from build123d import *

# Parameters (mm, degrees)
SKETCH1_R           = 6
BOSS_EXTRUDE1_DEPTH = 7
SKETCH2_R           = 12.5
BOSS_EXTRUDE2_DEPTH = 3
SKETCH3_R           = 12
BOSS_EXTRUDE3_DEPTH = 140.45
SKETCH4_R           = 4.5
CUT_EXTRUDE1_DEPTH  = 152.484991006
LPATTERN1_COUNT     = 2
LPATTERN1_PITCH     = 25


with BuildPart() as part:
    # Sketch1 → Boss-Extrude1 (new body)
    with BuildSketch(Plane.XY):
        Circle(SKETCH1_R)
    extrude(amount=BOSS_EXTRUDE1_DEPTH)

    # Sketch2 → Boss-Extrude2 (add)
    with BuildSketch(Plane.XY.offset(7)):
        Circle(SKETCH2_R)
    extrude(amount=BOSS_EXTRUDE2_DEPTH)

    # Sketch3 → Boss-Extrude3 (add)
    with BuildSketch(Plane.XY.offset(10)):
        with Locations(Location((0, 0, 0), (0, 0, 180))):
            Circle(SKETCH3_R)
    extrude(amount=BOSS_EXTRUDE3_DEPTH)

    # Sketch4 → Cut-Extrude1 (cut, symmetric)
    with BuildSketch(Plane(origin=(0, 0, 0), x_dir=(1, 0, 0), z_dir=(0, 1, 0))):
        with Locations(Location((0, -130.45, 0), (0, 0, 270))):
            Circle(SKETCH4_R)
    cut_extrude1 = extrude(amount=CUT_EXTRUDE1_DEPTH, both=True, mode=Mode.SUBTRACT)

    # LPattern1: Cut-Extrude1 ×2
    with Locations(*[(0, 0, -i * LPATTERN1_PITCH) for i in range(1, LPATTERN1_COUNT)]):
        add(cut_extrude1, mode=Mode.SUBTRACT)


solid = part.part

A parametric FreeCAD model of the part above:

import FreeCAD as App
import Part
import Sketcher

V = App.Vector

doc = App.newDocument("Part")
params = doc.addObject("Spreadsheet::Sheet", "Params")
for row, (alias, value) in enumerate([
    ("sketch1_diameter", "12 mm"),
    ("pad1_length", "7 mm"),
    ("sketch2_diameter", "25 mm"),
    ("pad2_length", "3 mm"),
    ("sketch3_diameter", "24 mm"),
    ("pad3_length", "140.45 mm"),
    ("sketch4_diameter", "9 mm"),
    ("pocket1_length", "304.969982 mm"),
    ("linearpattern_pitch", "25 mm"),
], start=1):
    params.set(f"A{row}", alias)
    params.set(f"B{row}", "=" + value)
    params.setAlias(f"B{row}", alias)

body = doc.addObject("PartDesign::Body", "Body")

# Sketch on XY plane
sketch1 = doc.addObject("Sketcher::SketchObject", "Sketch")
body.addObject(sketch1)
sketch1.AttachmentSupport = (doc.XY_Plane, [""])
sketch1.MapMode = "FlatFace"
sketch1.addGeometry(Part.Circle(V(0, 0, 0), V(0, 0, 1), 6), False)
sketch1.addConstraint(Sketcher.Constraint("Coincident", 0, 3, -1, 1))
sketch1.addConstraint(Sketcher.Constraint("Diameter", 0, 12.0))
sketch1.setExpression("Constraints[1]", "Params.sketch1_diameter")
pad1 = doc.addObject("PartDesign::Pad", "Pad")
body.addObject(pad1)
pad1.Profile = sketch1
pad1.setExpression("Length", "Params.pad1_length")

# Sketch on XY plane
sketch2 = doc.addObject("Sketcher::SketchObject", "Sketch001")
body.addObject(sketch2)
sketch2.AttachmentSupport = (doc.XY_Plane, [""])
sketch2.MapMode = "FlatFace"
sketch2.AttachmentOffset = App.Placement(V(0, 0, 7), App.Rotation())
sketch2.addGeometry(Part.Circle(V(0, 0, 0), V(0, 0, 1), 12), False)
sketch2.addConstraint(Sketcher.Constraint("Coincident", 0, 3, -1, 1))
sketch2.addConstraint(Sketcher.Constraint("Diameter", 0, 25.0))
sketch2.setExpression("Constraints[1]", "Params.sketch2_diameter")
pad2 = doc.addObject("PartDesign::Pad", "Pad001")
body.addObject(pad2)
pad2.Profile = sketch2
pad2.setExpression("Length", "Params.pad2_length")

# Sketch on XY plane
sketch3 = doc.addObject("Sketcher::SketchObject", "Sketch002")
body.addObject(sketch3)
sketch3.AttachmentSupport = (doc.XY_Plane, [""])
sketch3.MapMode = "FlatFace"
sketch3.AttachmentOffset = App.Placement(V(0, 0, 10), App.Rotation())
sketch3.addGeometry(Part.Circle(V(0, 0, 0), V(0, 0, 1), 12), False)
sketch3.addConstraint(Sketcher.Constraint("Coincident", 0, 3, -1, 1))
sketch3.addConstraint(Sketcher.Constraint("Diameter", 0, 24.0))
sketch3.setExpression("Constraints[1]", "Params.sketch3_diameter")
pad3 = doc.addObject("PartDesign::Pad", "Pad002")
body.addObject(pad3)
pad3.Profile = sketch3
pad3.setExpression("Length", "Params.pad3_length")

# Sketch on XZ plane
sketch4 = doc.addObject("Sketcher::SketchObject", "Sketch003")
body.addObject(sketch4)
sketch4.AttachmentSupport = (doc.XZ_Plane, [""])
sketch4.MapMode = "FlatFace"
sketch4.addGeometry(Part.Circle(V(0, 130.4, 0), V(0, 0, 1), 4.5), False)
sketch4.addConstraint(Sketcher.Constraint("PointOnObject", 0, 3, -2))
sketch4.addConstraint(Sketcher.Constraint("Diameter", 0, 9.0))
sketch4.addConstraint(Sketcher.Constraint("DistanceY", -1, 1, 0, 3, 130.45))
sketch4.setExpression("Constraints[1]", "Params.sketch4_diameter")
pocket1 = doc.addObject("PartDesign::Pocket", "Pocket")
body.addObject(pocket1)
pocket1.Profile = sketch4
pocket1.setExpression("Length", "Params.pocket1_length")
pocket1.Midplane = True
doc.recompute()

linearpattern = doc.addObject("PartDesign::LinearPattern", "LinearPattern")
body.addObject(linearpattern)
linearpattern.Originals = [pocket1]
linearpattern.Direction = (doc.Z_Axis, [""])
linearpattern.Mode = "offset"
linearpattern.setExpression("Offset", "Params.linearpattern_pitch")
linearpattern.Occurrences = 2
linearpattern.Reversed = True
body.Tip = linearpattern

doc.recompute()
